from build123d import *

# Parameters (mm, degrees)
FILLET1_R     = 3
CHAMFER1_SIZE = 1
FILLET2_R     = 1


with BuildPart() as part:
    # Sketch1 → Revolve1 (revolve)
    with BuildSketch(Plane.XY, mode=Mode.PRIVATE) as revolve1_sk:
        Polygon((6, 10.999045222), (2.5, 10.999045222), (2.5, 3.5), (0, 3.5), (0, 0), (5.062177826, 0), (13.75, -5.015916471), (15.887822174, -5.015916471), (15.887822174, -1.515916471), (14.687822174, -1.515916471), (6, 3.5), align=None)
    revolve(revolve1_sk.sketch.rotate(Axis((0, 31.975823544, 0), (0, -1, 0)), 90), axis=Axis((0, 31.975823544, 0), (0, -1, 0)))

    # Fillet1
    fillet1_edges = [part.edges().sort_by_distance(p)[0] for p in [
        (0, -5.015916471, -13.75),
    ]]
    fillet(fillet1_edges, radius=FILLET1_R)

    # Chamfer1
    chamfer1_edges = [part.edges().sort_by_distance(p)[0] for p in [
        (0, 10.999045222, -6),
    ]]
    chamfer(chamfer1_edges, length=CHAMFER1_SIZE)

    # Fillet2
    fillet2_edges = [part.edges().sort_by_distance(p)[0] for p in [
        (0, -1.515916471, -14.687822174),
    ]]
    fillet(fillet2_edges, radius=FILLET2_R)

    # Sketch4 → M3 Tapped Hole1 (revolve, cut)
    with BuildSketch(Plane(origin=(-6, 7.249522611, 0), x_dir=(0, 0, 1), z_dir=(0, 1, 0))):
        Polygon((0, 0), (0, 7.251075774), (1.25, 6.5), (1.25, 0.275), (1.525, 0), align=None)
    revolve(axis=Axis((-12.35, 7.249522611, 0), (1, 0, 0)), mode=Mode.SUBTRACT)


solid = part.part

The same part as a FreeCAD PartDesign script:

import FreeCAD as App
import Part
import Sketcher
Q = App.Units.Quantity


def edges_at(feature, points):
    """Names of the edges that pass closest to the given points."""
    edges = feature.Shape.Edges
    near = lambda p: min(range(len(edges)), key=lambda i: edges[i].distToShape(Part.Vertex(*p))[0])
    return sorted({f"Edge{near(p) + 1}" for p in points})

doc = App.newDocument("Part")
body = doc.addObject("PartDesign::Body", "Body")

sketch1 = body.newObject("Sketcher::SketchObject", "Sketch")
sketch1.AttachmentSupport = (doc.getObject("XY_Plane"), [""])
sketch1.MapMode = "FlatFace"
sketch1.addGeometry([
    Part.LineSegment(App.Vector(6, 10.999045, 0), App.Vector(2.5, 10.999045, 0)),
    Part.LineSegment(App.Vector(2.5, 10.999045, 0), App.Vector(2.5, 3.5, 0)),
    Part.LineSegment(App.Vector(2.5, 3.5, 0), App.Vector(0, 3.5, 0)),
    Part.LineSegment(App.Vector(0, 3.5, 0), App.Vector(0, 0, 0)),
    Part.LineSegment(App.Vector(0, 0, 0), App.Vector(5.062178, 0, 0)),
    Part.LineSegment(App.Vector(5.062178, 0, 0), App.Vector(13.75, -5.015916, 0)),
    Part.LineSegment(App.Vector(13.75, -5.015916, 0), App.Vector(15.887822, -5.015916, 0)),
    Part.LineSegment(App.Vector(15.887822, -5.015916, 0), App.Vector(15.887822, -1.515916, 0)),
    Part.LineSegment(App.Vector(15.887822, -1.515916, 0), App.Vector(14.687822, -1.515916, 0)),
    Part.LineSegment(App.Vector(14.687822, -1.515916, 0), App.Vector(6, 3.5, 0)),
    Part.LineSegment(App.Vector(6, 3.5, 0), App.Vector(6, 10.999045, 0)),
], False)
sketch1.addConstraint([
    Sketcher.Constraint("Coincident", 0, 2, 1, 1),
    Sketcher.Constraint("Coincident", 1, 2, 2, 1),
    Sketcher.Constraint("Coincident", 2, 2, 3, 1),
    Sketcher.Constraint("Coincident", 3, 2, 4, 1),
    Sketcher.Constraint("Coincident", 4, 2, 5, 1),
    Sketcher.Constraint("Coincident", 5, 2, 6, 1),
    Sketcher.Constraint("Coincident", 6, 2, 7, 1),
    Sketcher.Constraint("Coincident", 7, 2, 8, 1),
    Sketcher.Constraint("Coincident", 8, 2, 9, 1),
    Sketcher.Constraint("Coincident", 9, 2, 10, 1),
    Sketcher.Constraint("Coincident", 10, 2, 0, 1),
    Sketcher.Constraint("Horizontal", 0),
    Sketcher.Constraint("Vertical", 1),
    Sketcher.Constraint("Horizontal", 2),
    Sketcher.Constraint("Vertical", 3),
    Sketcher.Constraint("Horizontal", 4),
    Sketcher.Constraint("Horizontal", 6),
    Sketcher.Constraint("Vertical", 7),
    Sketcher.Constraint("Horizontal", 8),
    Sketcher.Constraint("Vertical", 10),
    Sketcher.Constraint("Coincident", 3, 2, -1, 1),
    Sketcher.Constraint("Parallel", 5, 9),
    Sketcher.Constraint("Horizontal", 2, 2, 9, 2),
    Sketcher.Constraint("Equal", 0, 3),
    Sketcher.Constraint("Equal", 3, 7),
    Sketcher.Constraint("Angle", 5, Q("-30 deg")),
    Sketcher.Constraint("DistanceX", 0, 2, 0, 1, 3.5),
    Sketcher.Constraint("DistanceX", 2, 2, 2, 1, 2.5),
    Sketcher.Constraint("DistanceX", 8, 2, 8, 1, 1.2),
    Sketcher.Constraint("DistanceX", -1, 1, 5, 2, 13.75),
    Sketcher.Constraint("DistanceX", 4, 1, 4, 2, 5.062178),
    Sketcher.Constraint("DistanceY", 1, 2, 1, 1, 7.499045),
])
revolution = body.newObject("PartDesign::Revolution", "Revolution")
revolution.Profile = sketch1
revolution.ReferenceAxis = (sketch1, ["V_Axis"])
revolution.Angle = 360
doc.recompute()

fillet = body.newObject("PartDesign::Fillet", "Fillet")
fillet.Base = (revolution, edges_at(revolution, [(0, -5.016, -13.75)]))
fillet.Radius = 3
doc.recompute()

chamfer = body.newObject("PartDesign::Chamfer", "Chamfer")
chamfer.Base = (fillet, edges_at(fillet, [(0, 10.999, -6)]))
chamfer.Size = 1
doc.recompute()

fillet2 = body.newObject("PartDesign::Fillet", "Fillet001")
fillet2.Base = (chamfer, edges_at(chamfer, [(0, -1.516, -14.688)]))
fillet2.Radius = 1

sketch2 = body.newObject("Sketcher::SketchObject", "Sketch001")
sketch2.AttachmentSupport = (doc.getObject("XZ_Plane"), [""])
sketch2.MapMode = "FlatFace"
sketch2.AttachmentOffset = App.Placement(App.Vector(0, 0, -7.249523), App.Rotation())
sketch2.addGeometry([
    Part.LineSegment(App.Vector(1.251076, 0, 0), App.Vector(-6, 0, 0)),
    Part.LineSegment(App.Vector(-6, 0, 0), App.Vector(-6, 1.525, 0)),
    Part.LineSegment(App.Vector(-6, 1.525, 0), App.Vector(-5.725, 1.25, 0)),
    Part.LineSegment(App.Vector(-5.725, 1.25, 0), App.Vector(0.5, 1.25, 0)),
    Part.LineSegment(App.Vector(0.5, 1.25, 0), App.Vector(1.251076, 0, 0)),
], False)
sketch2.addConstraint([
    Sketcher.Constraint("Coincident", 0, 2, 1, 1),
    Sketcher.Constraint("Coincident", 1, 2, 2, 1),
    Sketcher.Constraint("Coincident", 2, 2, 3, 1),
    Sketcher.Constraint("Coincident", 3, 2, 4, 1),
    Sketcher.Constraint("Coincident", 4, 2, 0, 1),
    Sketcher.Constraint("Horizontal", 0),
    Sketcher.Constraint("Vertical", 1),
    Sketcher.Constraint("Horizontal", 3),
    Sketcher.Constraint("PointOnObject", 0, 2, -1),
    Sketcher.Constraint("Angle", 2, Q("-45 deg")),
    Sketcher.Constraint("Angle", 4, Q("-59 deg")),
    Sketcher.Constraint("DistanceX", 0, 2, -1, 1, 6.0),
    Sketcher.Constraint("DistanceX", -1, 1, 3, 2, 0.5),
    Sketcher.Constraint("DistanceX", 3, 1, 3, 2, 6.225),
    Sketcher.Constraint("DistanceY", 1, 1, 1, 2, 1.525),
])
groove = body.newObject("PartDesign::Groove", "Groove")
groove.Profile = sketch2
groove.ReferenceAxis = (sketch2, ["H_Axis"])
groove.Angle = 360

doc.recompute()
